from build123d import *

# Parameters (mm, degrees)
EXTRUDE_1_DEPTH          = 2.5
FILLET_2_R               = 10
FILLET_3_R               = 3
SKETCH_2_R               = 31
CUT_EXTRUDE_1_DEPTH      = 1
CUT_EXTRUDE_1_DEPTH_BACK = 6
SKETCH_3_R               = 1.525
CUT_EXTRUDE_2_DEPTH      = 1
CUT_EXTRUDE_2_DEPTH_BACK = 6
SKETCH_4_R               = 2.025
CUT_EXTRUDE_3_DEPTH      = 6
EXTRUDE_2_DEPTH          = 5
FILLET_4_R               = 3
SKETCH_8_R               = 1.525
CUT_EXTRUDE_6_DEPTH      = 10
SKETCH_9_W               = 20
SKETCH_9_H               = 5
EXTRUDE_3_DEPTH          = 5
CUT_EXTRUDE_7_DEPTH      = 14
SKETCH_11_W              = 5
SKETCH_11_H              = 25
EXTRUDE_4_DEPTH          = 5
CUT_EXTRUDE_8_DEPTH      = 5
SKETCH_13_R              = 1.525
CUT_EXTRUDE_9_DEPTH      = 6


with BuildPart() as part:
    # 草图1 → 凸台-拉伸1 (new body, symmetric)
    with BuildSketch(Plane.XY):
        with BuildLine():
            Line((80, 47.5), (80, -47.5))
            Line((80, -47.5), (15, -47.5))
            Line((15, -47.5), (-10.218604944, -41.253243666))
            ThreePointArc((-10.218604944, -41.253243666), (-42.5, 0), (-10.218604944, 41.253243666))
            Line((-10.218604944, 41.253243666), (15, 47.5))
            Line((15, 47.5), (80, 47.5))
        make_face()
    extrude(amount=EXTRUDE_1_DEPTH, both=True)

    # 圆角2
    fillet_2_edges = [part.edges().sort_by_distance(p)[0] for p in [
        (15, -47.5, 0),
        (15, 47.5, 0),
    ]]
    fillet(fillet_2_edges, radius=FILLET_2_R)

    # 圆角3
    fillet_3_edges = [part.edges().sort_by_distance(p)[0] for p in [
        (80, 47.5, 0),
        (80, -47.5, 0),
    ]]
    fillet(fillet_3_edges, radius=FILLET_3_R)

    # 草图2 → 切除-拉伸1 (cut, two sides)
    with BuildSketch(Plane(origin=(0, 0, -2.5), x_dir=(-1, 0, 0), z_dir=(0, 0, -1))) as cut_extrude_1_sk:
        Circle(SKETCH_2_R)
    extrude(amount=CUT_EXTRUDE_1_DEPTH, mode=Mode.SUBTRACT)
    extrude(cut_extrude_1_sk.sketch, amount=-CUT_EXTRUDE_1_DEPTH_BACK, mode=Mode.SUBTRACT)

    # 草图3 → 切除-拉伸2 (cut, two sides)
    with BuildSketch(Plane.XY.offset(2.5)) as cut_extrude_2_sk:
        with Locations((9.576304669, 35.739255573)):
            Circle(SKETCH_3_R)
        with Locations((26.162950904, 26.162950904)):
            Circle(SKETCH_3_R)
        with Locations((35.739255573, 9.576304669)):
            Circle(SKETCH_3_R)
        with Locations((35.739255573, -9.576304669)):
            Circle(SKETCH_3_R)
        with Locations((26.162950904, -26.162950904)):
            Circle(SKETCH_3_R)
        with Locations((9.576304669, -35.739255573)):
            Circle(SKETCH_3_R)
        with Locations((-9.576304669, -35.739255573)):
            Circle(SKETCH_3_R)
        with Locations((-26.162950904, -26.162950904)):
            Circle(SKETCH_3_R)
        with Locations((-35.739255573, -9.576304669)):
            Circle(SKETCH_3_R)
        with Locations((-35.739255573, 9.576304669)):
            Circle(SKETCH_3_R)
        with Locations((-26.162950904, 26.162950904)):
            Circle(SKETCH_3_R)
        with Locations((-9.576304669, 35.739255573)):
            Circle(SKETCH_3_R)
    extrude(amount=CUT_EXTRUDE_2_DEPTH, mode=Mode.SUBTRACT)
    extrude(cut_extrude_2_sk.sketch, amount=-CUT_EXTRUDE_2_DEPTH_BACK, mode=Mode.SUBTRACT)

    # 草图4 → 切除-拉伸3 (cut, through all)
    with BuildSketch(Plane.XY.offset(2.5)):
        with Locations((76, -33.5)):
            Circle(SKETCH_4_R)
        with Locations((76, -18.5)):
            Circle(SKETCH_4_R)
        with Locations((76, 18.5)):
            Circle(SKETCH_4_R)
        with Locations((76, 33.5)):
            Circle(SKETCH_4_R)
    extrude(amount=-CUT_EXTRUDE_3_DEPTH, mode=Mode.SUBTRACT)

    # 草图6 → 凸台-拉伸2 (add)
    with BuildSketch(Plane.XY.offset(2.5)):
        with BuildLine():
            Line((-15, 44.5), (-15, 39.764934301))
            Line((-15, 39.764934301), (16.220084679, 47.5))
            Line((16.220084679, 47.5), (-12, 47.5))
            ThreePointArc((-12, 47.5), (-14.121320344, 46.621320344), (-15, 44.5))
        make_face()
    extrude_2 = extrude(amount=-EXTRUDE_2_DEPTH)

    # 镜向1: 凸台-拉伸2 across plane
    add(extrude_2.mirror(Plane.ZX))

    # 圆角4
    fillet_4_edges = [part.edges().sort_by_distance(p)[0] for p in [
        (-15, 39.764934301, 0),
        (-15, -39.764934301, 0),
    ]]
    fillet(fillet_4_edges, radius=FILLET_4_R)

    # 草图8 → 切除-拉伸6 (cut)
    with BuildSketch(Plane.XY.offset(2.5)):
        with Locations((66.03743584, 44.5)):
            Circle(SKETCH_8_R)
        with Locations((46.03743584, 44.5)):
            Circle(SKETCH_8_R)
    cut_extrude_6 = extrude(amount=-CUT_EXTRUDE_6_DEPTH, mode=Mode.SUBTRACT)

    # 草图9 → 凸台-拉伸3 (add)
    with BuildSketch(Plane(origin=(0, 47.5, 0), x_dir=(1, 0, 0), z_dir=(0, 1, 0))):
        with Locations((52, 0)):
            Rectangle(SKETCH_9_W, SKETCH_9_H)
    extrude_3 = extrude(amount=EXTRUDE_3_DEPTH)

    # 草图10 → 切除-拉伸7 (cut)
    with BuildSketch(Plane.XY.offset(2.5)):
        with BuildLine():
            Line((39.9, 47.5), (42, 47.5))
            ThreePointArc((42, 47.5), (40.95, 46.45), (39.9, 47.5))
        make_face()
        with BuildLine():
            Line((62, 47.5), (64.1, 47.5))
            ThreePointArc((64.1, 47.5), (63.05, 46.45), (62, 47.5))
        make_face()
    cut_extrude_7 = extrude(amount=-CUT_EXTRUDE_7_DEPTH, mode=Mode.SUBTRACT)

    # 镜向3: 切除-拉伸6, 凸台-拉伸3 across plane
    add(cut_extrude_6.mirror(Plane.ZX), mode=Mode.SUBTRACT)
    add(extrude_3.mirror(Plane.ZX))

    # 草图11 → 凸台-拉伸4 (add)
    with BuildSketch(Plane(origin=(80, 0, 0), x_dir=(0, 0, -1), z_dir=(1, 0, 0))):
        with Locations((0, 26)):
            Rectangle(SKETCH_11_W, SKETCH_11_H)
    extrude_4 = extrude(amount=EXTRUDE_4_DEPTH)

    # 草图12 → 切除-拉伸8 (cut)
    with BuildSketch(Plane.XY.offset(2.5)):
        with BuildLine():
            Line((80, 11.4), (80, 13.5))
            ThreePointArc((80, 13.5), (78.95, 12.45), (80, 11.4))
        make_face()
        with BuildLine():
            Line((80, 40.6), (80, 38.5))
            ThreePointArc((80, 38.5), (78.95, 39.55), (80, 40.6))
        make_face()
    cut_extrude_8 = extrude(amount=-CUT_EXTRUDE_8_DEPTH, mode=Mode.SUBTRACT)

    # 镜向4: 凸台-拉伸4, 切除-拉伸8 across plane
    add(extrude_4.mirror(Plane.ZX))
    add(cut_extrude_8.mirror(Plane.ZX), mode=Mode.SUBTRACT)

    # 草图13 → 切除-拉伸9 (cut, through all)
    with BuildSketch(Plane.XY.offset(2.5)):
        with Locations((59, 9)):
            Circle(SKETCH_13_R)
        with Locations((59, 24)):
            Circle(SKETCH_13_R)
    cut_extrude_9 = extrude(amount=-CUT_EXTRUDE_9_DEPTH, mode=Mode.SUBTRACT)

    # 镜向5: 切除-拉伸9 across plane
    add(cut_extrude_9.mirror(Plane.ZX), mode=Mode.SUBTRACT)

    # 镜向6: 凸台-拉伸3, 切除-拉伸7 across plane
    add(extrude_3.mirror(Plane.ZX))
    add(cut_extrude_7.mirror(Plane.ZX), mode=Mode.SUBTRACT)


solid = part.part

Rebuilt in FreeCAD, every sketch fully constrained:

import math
import FreeCAD as App
import Part
import Sketcher

V = App.Vector


def edges_at(feature, points):
    """Names of the edges that pass closest to the given points."""
    edges = feature.Shape.Edges
    near = lambda p: min(range(len(edges)), key=lambda i: edges[i].distToShape(Part.Vertex(*p))[0])
    return sorted({f"Edge{near(p) + 1}" for p in points})

doc = App.newDocument("Part")
body = doc.addObject("PartDesign::Body", "Body")

# Sketch on XY plane
sketch1 = doc.addObject("Sketcher::SketchObject", "Sketch")
body.addObject(sketch1)
sketch1.AttachmentSupport = (doc.XY_Plane, [""])
sketch1.MapMode = "FlatFace"
sketch1.addGeometry(Part.LineSegment(V(80, -48, 0), V(80, 48, 0)), False)
sketch1.addGeometry(Part.LineSegment(V(80, 48, 0), V(15, 48, 0)), False)
sketch1.addGeometry(Part.LineSegment(V(15, 48, 0), V(-10, 41, 0)), False)
sketch1.addGeometry(Part.ArcOfCircle(Part.Circle(V(0, 0, 0), V(0, 0, 1), 42), math.radians(104), math.radians(256)), False)
sketch1.addGeometry(Part.LineSegment(V(-10, -41, 0), V(15, -48, 0)), False)
sketch1.addGeometry(Part.LineSegment(V(15, -48, 0), V(80, -48, 0)), False)
sketch1.addConstraint(Sketcher.Constraint("Coincident", 0, 2, 1, 1))
sketch1.addConstraint(Sketcher.Constraint("Coincident", 1, 2, 2, 1))
sketch1.addConstraint(Sketcher.Constraint("Tangent", 2, 2, 3, 1))
sketch1.addConstraint(Sketcher.Constraint("Tangent", 3, 2, 4, 1))
sketch1.addConstraint(Sketcher.Constraint("Coincident", 4, 2, 5, 1))
sketch1.addConstraint(Sketcher.Constraint("Coincident", 5, 2, 0, 1))
sketch1.addConstraint(Sketcher.Constraint("Vertical", 0))
sketch1.addConstraint(Sketcher.Constraint("Horizontal", 1))
sketch1.addConstraint(Sketcher.Constraint("Horizontal", 5))
sketch1.addConstraint(Sketcher.Constraint("Coincident", 3, 3, -1, 1))
sketch1.addConstraint(Sketcher.Constraint("Symmetric", 1, 2, 4, 2, -1))
sketch1.addConstraint(Sketcher.Constraint("Radius", 3, 42.5))
sketch1.addConstraint(Sketcher.Constraint("DistanceX", 1, 2, 1, 1, 65.0))
sketch1.addConstraint(Sketcher.Constraint("DistanceY", 0, 1, 0, 2, 95.0))
sketch1.addConstraint(Sketcher.Constraint("DistanceX", -1, 1, 0, 2, 80.0))
pad1 = doc.addObject("PartDesign::Pad", "Pad")
body.addObject(pad1)
pad1.Profile = sketch1
pad1.Length = 5
pad1.Midplane = True
doc.recompute()

fillet = doc.addObject("PartDesign::Fillet", "Fillet")
body.addObject(fillet)
fillet.Base = (pad1, edges_at(pad1, [(15, -47.5, 0), (15, 47.5, 0)]))
fillet.Radius = 10
doc.recompute()

fillet2 = doc.addObject("PartDesign::Fillet", "Fillet001")
body.addObject(fillet2)
fillet2.Base = (fillet, edges_at(fillet, [(80, 47.5, 0), (80, -47.5, 0)]))
fillet2.Radius = 3

# Sketch on XY plane
sketch2 = doc.addObject("Sketcher::SketchObject", "Sketch001")
body.addObject(sketch2)
sketch2.AttachmentSupport = (doc.XY_Plane, [""])
sketch2.MapMode = "FlatFace"
sketch2.AttachmentOffset = App.Placement(V(0, 0, -2.5), App.Rotation())
sketch2.addGeometry(Part.Circle(V(0, 0, 0), V(0, 0, 1), 31), False)
sketch2.addConstraint(Sketcher.Constraint("Coincident", 0, 3, -1, 1))
sketch2.addConstraint(Sketcher.Constraint("Diameter", 0, 62.0))
pocket1 = doc.addObject("PartDesign::Pocket", "Pocket")
body.addObject(pocket1)
pocket1.Profile = sketch2
pocket1.Type = "ThroughAll"
pocket1.Midplane = True

# Sketch on XY plane
sketch3 = doc.addObject("Sketcher::SketchObject", "Sketch002")
body.addObject(sketch3)
sketch3.AttachmentSupport = (doc.XY_Plane, [""])
sketch3.MapMode = "FlatFace"
sketch3.AttachmentOffset = App.Placement(V(0, 0, 2.5), App.Rotation())
sketch3.addGeometry(Part.Circle(V(9.6, 35.7, 0), V(0, 0, 1), 1.5), False)
sketch3.addGeometry(Part.Circle(V(26.2, 26.2, 0), V(0, 0, 1), 1.5), False)
sketch3.addGeometry(Part.Circle(V(35.7, 9.6, 0), V(0, 0, 1), 1.5), False)
sketch3.addGeometry(Part.Circle(V(35.7, -9.6, 0), V(0, 0, 1), 1.5), False)
sketch3.addGeometry(Part.Circle(V(26.2, -26.2, 0), V(0, 0, 1), 1.5), False)
sketch3.addGeometry(Part.Circle(V(9.6, -35.7, 0), V(0, 0, 1), 1.5), False)
sketch3.addGeometry(Part.Circle(V(-9.6, -35.7, 0), V(0, 0, 1), 1.5), False)
sketch3.addGeometry(Part.Circle(V(-26.2, -26.2, 0), V(0, 0, 1), 1.5), False)
sketch3.addGeometry(Part.Circle(V(-35.7, -9.6, 0), V(0, 0, 1), 1.5), False)
sketch3.addGeometry(Part.Circle(V(-35.7, 9.6, 0), V(0, 0, 1), 1.5), False)
sketch3.addGeometry(Part.Circle(V(-26.2, 26.2, 0), V(0, 0, 1), 1.5), False)
sketch3.addGeometry(Part.Circle(V(-9.6, 35.7, 0), V(0, 0, 1), 1.5), False)
sketch3.addConstraint(Sketcher.Constraint("Equal", 0, 1))
sketch3.addConstraint(Sketcher.Constraint("Equal", 1, 2))
sketch3.addConstraint(Sketcher.Constraint("Equal", 2, 3))
sketch3.addConstraint(Sketcher.Constraint("Equal", 3, 4))
sketch3.addConstraint(Sketcher.Constraint("Equal", 4, 5))
sketch3.addConstraint(Sketcher.Constraint("Equal", 5, 6))
sketch3.addConstraint(Sketcher.Constraint("Equal", 6, 7))
sketch3.addConstraint(Sketcher.Constraint("Equal", 7, 8))
sketch3.addConstraint(Sketcher.Constraint("Equal", 8, 9))
sketch3.addConstraint(Sketcher.Constraint("Equal", 9, 10))
sketch3.addConstraint(Sketcher.Constraint("Equal", 10, 11))
sketch3.addConstraint(Sketcher.Constraint("Symmetric", 0, 3, 6, 3, -1, 1))
sketch3.addConstraint(Sketcher.Constraint("Symmetric", 1, 3, 7, 3, -1, 1))
sketch3.addConstraint(Sketcher.Constraint("Symmetric", 2, 3, 8, 3, -1, 1))
sketch3.addConstraint(Sketcher.Constraint("Symmetric", 3, 3, 9, 3, -1, 1))
sketch3.addConstraint(Sketcher.Constraint("Symmetric", 4, 3, 10, 3, -1, 1))
sketch3.addConstraint(Sketcher.Constraint("Symmetric", 5, 3, 11, 3, -1, 1))
sketch3.addConstraint(Sketcher.Constraint("Symmetric", 5, 3, 6, 3, -2))
sketch3.addConstraint(Sketcher.Constraint("Symmetric", 4, 3, 7, 3, -2))
sketch3.addConstraint(Sketcher.Constraint("Symmetric", 3, 3, 8, 3, -2))
sketch3.addConstraint(Sketcher.Constraint("Diameter", 0, 3.05))
sketch3.addConstraint(Sketcher.Constraint("DistanceY", 4, 3, 1, 3, 52.325902))
sketch3.addConstraint(Sketcher.Constraint("DistanceX", 7, 3, 4, 3, 52.325902))
sketch3.addConstraint(Sketcher.Constraint("DistanceX", 0, 3, 2, 3, 26.162951))
sketch3.addConstraint(Sketcher.Constraint("DistanceY", 2, 3, 0, 3, 26.162951))
sketch3.addConstraint(Sketcher.Constraint("DistanceY", 3, 3, 2, 3, 19.152609))
sketch3.addConstraint(Sketcher.Constraint("DistanceX", 6, 3, 5, 3, 19.152609))
pocket2 = doc.addObject("PartDesign::Pocket", "Pocket001")
body.addObject(pocket2)
pocket2.Profile = sketch3
pocket2.Type = "ThroughAll"
pocket2.Midplane = True

# Sketch on XY plane
sketch4 = doc.addObject("Sketcher::SketchObject", "Sketch003")
body.addObject(sketch4)
sketch4.AttachmentSupport = (doc.XY_Plane, [""])
sketch4.MapMode = "FlatFace"
sketch4.AttachmentOffset = App.Placement(V(0, 0, 2.5), App.Rotation())
sketch4.addGeometry(Part.Circle(V(76, -33.5, 0), V(0, 0, 1), 2), False)
sketch4.addGeometry(Part.Circle(V(76, -18.5, 0), V(0, 0, 1), 2), False)
sketch4.addGeometry(Part.Circle(V(76, 18.5, 0), V(0, 0, 1), 2), False)
sketch4.addGeometry(Part.Circle(V(76, 33.5, 0), V(0, 0, 1), 2), False)
sketch4.addConstraint(Sketcher.Constraint("Equal", 0, 1))
sketch4.addConstraint(Sketcher.Constraint("Equal", 1, 2))
sketch4.addConstraint(Sketcher.Constraint("Equal", 2, 3))
sketch4.addConstraint(Sketcher.Constraint("Symmetric", 1, 3, 2, 3, -1))
sketch4.addConstraint(Sketcher.Constraint("Symmetric", 0, 3, 3, 3, -1))
sketch4.addConstraint(Sketcher.Constraint("Vertical", 0, 3, 1, 3))
sketch4.addConstraint(Sketcher.Constraint("Diameter", 0, 4.05))
sketch4.addConstraint(Sketcher.Constraint("DistanceX", -1, 1, 0, 3, 76.0))
sketch4.addConstraint(Sketcher.Constraint("DistanceY", 0, 3, 1, 3, 15.0))
sketch4.addConstraint(Sketcher.Constraint("DistanceY", 1, 3, 2, 3, 37.0))
pocket3 = doc.addObject("PartDesign::Pocket", "Pocket002")
body.addObject(pocket3)
pocket3.Profile = sketch4
pocket3.Type = "ThroughAll"

# Sketch on XY plane
sketch5 = doc.addObject("Sketcher::SketchObject", "Sketch004")
body.addObject(sketch5)
sketch5.AttachmentSupport = (doc.XY_Plane, [""])
sketch5.MapMode = "FlatFace"
sketch5.AttachmentOffset = App.Placement(V(0, 0, 2.5), App.Rotation())
sketch5.addGeometry(Part.LineSegment(V(-15, 44.5, 0), V(-15, 39.8, 0)), False)
sketch5.addGeometry(Part.LineSegment(V(-15, 39.8, 0), V(16.2, 47.5, 0)), False)
sketch5.addGeometry(Part.LineSegment(V(16.2, 47.5, 0), V(-12, 47.5, 0)), False)
sketch5.addGeometry(Part.ArcOfCircle(Part.Circle(V(-12, 44.5, 0), V(0, 0, 1), 3), math.radians(90), math.radians(180)), False)
sketch5.addConstraint(Sketcher.Constraint("Coincident", 0, 2, 1, 1))
sketch5.addConstraint(Sketcher.Constraint("Coincident", 1, 2, 2, 1))
sketch5.addConstraint(Sketcher.Constraint("Tangent", 2, 2, 3, 1))
sketch5.addConstraint(Sketcher.Constraint("Tangent", 3, 2, 0, 1))
sketch5.addConstraint(Sketcher.Constraint("Vertical", 0))
sketch5.addConstraint(Sketcher.Constraint("Horizontal", 2))
sketch5.addConstraint(Sketcher.Constraint("Radius", 3, 3.0))
sketch5.addConstraint(Sketcher.Constraint("DistanceX", 3, 3, -1, 1, 12.0))
sketch5.addConstraint(Sketcher.Constraint("DistanceY", -1, 1, 3, 3, 44.5))
sketch5.addConstraint(Sketcher.Constraint("Distance", 1, 32.164032))
sketch5.addConstraint(Sketcher.Constraint("DistanceX", 2, 2, 2, 1, 28.220085))
pad2 = doc.addObject("PartDesign::Pad", "Pad001")
body.addObject(pad2)
pad2.Profile = sketch5
pad2.Length = 5
pad2.Reversed = True
doc.recompute()

mirrored = doc.addObject("PartDesign::Mirrored", "Mirrored")
body.addObject(mirrored)
mirrored.Originals = [pad2]
mirrored.MirrorPlane = (doc.XZ_Plane, [""])
body.Tip = mirrored
doc.recompute()

fillet3 = doc.addObject("PartDesign::Fillet", "Fillet002")
body.addObject(fillet3)
fillet3.Base = (mirrored, edges_at(mirrored, [(-15, 39.765, 0), (-15, -39.765, 0)]))
fillet3.Radius = 3

# Sketch on XY plane
sketch6 = doc.addObject("Sketcher::SketchObject", "Sketch005")
body.addObject(sketch6)
sketch6.AttachmentSupport = (doc.XY_Plane, [""])
sketch6.MapMode = "FlatFace"
sketch6.AttachmentOffset = App.Placement(V(0, 0, 2.5), App.Rotation())
sketch6.addGeometry(Part.Circle(V(66, 44.5, 0), V(0, 0, 1), 1.5), False)
sketch6.addGeometry(Part.Circle(V(46, 44.5, 0), V(0, 0, 1), 1.5), False)
sketch6.addConstraint(Sketcher.Constraint("Equal", 0, 1))
sketch6.addConstraint(Sketcher.Constraint("Horizontal", 0, 3, 1, 3))
sketch6.addConstraint(Sketcher.Constraint("Diameter", 0, 3.05))
sketch6.addConstraint(Sketcher.Constraint("DistanceX", 1, 3, 0, 3, 20.0))
sketch6.addConstraint(Sketcher.Constraint("DistanceY", -1, 1, 0, 3, 44.5))
sketch6.addConstraint(Sketcher.Constraint("DistanceX", -1, 1, 0, 3, 66.037436))
pocket4 = doc.addObject("PartDesign::Pocket", "Pocket003")
body.addObject(pocket4)
pocket4.Profile = sketch6
pocket4.Length = 10

# Sketch on XZ plane
sketch7 = doc.addObject("Sketcher::SketchObject", "Sketch006")
body.addObject(sketch7)
sketch7.AttachmentSupport = (doc.XZ_Plane, [""])
sketch7.MapMode = "FlatFace"
sketch7.AttachmentOffset = App.Placement(V(0, 0, -47.5), App.Rotation())
sketch7.addGeometry(Part.LineSegment(V(42, -2, 0), V(42, 2, 0)), False)
sketch7.addGeometry(Part.LineSegment(V(42, 2, 0), V(62, 2, 0)), False)
sketch7.addGeometry(Part.LineSegment(V(62, 2, 0), V(62, -2, 0)), False)
sketch7.addGeometry(Part.LineSegment(V(62, -2, 0), V(42, -2, 0)), False)
sketch7.addConstraint(Sketcher.Constraint("Coincident", 0, 2, 1, 1))
sketch7.addConstraint(Sketcher.Constraint("Coincident", 1, 2, 2, 1))
sketch7.addConstraint(Sketcher.Constraint("Coincident", 2, 2, 3, 1))
sketch7.addConstraint(Sketcher.Constraint("Coincident", 3, 2, 0, 1))
sketch7.addConstraint(Sketcher.Constraint("Vertical", 0))
sketch7.addConstraint(Sketcher.Constraint("Horizontal", 1))
sketch7.addConstraint(Sketcher.Constraint("Vertical", 2))
sketch7.addConstraint(Sketcher.Constraint("Horizontal", 3))
sketch7.addConstraint(Sketcher.Constraint("DistanceX", 1, 1, 1, 2, 20.0))
sketch7.addConstraint(Sketcher.Constraint("DistanceY", 0, 1, 0, 2, 5.0))
sketch7.addConstraint(Sketcher.Constraint("DistanceX", -1, 1, 0, 2, 42.0))
sketch7.addConstraint(Sketcher.Constraint("DistanceY", -1, 1, 0, 2, 2.5))
pad3 = doc.addObject("PartDesign::Pad", "Pad002")
body.addObject(pad3)
pad3.Profile = sketch7
pad3.Length = 5
pad3.Reversed = True

# Sketch on XY plane
sketch8 = doc.addObject("Sketcher::SketchObject", "Sketch007")
body.addObject(sketch8)
sketch8.AttachmentSupport = (doc.XY_Plane, [""])
sketch8.MapMode = "FlatFace"
sketch8.AttachmentOffset = App.Placement(V(0, 0, 2.5), App.Rotation())
sketch8.addGeometry(Part.LineSegment(V(42, 47.5, 0), V(39.9, 47.5, 0)), False)
sketch8.addGeometry(Part.ArcOfCircle(Part.Circle(V(41, 47.5, 0), V(0, 0, 1), 1.1), math.radians(180), math.radians(360)), False)
sketch8.addGeometry(Part.LineSegment(V(64.1, 47.5, 0), V(62, 47.5, 0)), False)
sketch8.addGeometry(Part.ArcOfCircle(Part.Circle(V(63, 47.5, 0), V(0, 0, 1), 1.1), math.radians(180), math.radians(360)), False)
sketch8.addConstraint(Sketcher.Constraint("Coincident", 0, 1, 1, 2))
sketch8.addConstraint(Sketcher.Constraint("Coincident", 1, 1, 0, 2))
sketch8.addConstraint(Sketcher.Constraint("Coincident", 2, 1, 3, 2))
sketch8.addConstraint(Sketcher.Constraint("Coincident", 3, 1, 2, 2))
sketch8.addConstraint(Sketcher.Constraint("Horizontal", 0))
sketch8.addConstraint(Sketcher.Constraint("Horizontal", 2))
sketch8.addConstraint(Sketcher.Constraint("Equal", 1, 3))
sketch8.addConstraint(Sketcher.Constraint("Horizontal", 1, 3, 3, 3))
sketch8.addConstraint(Sketcher.Constraint("Horizontal", 3, 3, 0, 1))
sketch8.addConstraint(Sketcher.Constraint("Horizontal", 1, 1, 2, 1))
sketch8.addConstraint(Sketcher.Constraint("Radius", 1, 1.05))
sketch8.addConstraint(Sketcher.Constraint("DistanceX", -1, 1, 0, 1, 42.0))
sketch8.addConstraint(Sketcher.Constraint("DistanceX", -1, 1, 3, 1, 62.0))
sketch8.addConstraint(Sketcher.Constraint("DistanceY", -1, 1, 1, 3, 47.5))
pocket5 = doc.addObject("PartDesign::Pocket", "Pocket004")
body.addObject(pocket5)
pocket5.Profile = sketch8
pocket5.Length = 14
doc.recompute()

mirrored2 = doc.addObject("PartDesign::Mirrored", "Mirrored001")
body.addObject(mirrored2)
mirrored2.Originals = [pocket4, pad3]
mirrored2.MirrorPlane = (doc.XZ_Plane, [""])
body.Tip = mirrored2

# Sketch on YZ plane
sketch9 = doc.addObject("Sketcher::SketchObject", "Sketch008")
body.addObject(sketch9)
sketch9.AttachmentSupport = (doc.YZ_Plane, [""])
sketch9.MapMode = "FlatFace"
sketch9.AttachmentOffset = App.Placement(V(0, 0, 80), App.Rotation())
sketch9.addGeometry(Part.LineSegment(V(38, 2, 0), V(14, 2, 0)), False)
sketch9.addGeometry(Part.LineSegment(V(14, 2, 0), V(14, -2, 0)), False)
sketch9.addGeometry(Part.LineSegment(V(14, -2, 0), V(38, -2, 0)), False)
sketch9.addGeometry(Part.LineSegment(V(38, -2, 0), V(38, 2, 0)), False)
sketch9.addConstraint(Sketcher.Constraint("Coincident", 0, 2, 1, 1))
sketch9.addConstraint(Sketcher.Constraint("Coincident", 1, 2, 2, 1))
sketch9.addConstraint(Sketcher.Constraint("Coincident", 2, 2, 3, 1))
sketch9.addConstraint(Sketcher.Constraint("Coincident", 3, 2, 0, 1))
sketch9.addConstraint(Sketcher.Constraint("Horizontal", 0))
sketch9.addConstraint(Sketcher.Constraint("Vertical", 1))
sketch9.addConstraint(Sketcher.Constraint("Horizontal", 2))
sketch9.addConstraint(Sketcher.Constraint("Vertical", 3))
sketch9.addConstraint(Sketcher.Constraint("DistanceX", 0, 2, 0, 1, 25.0))
sketch9.addConstraint(Sketcher.Constraint("DistanceY", 1, 2, 1, 1, 5.0))
sketch9.addConstraint(Sketcher.Constraint("DistanceX", -1, 1, 0, 2, 13.5))
sketch9.addConstraint(Sketcher.Constraint("DistanceY", -1, 1, 0, 2, 2.5))
pad4 = doc.addObject("PartDesign::Pad", "Pad003")
body.addObject(pad4)
pad4.Profile = sketch9
pad4.Length = 5

# Sketch on XY plane
sketch10 = doc.addObject("Sketcher::SketchObject", "Sketch009")
body.addObject(sketch10)
sketch10.AttachmentSupport = (doc.XY_Plane, [""])
sketch10.MapMode = "FlatFace"
sketch10.AttachmentOffset = App.Placement(V(0, 0, 2.5), App.Rotation())
sketch10.addGeometry(Part.LineSegment(V(80, 11.4, 0), V(80, 13.5, 0)), False)
sketch10.addGeometry(Part.ArcOfCircle(Part.Circle(V(80, 12.4, 0), V(0, 0, 1), 1.1), math.radians(90), math.radians(270)), False)
sketch10.addGeometry(Part.LineSegment(V(80, 38.5, 0), V(80, 40.6, 0)), False)
sketch10.addGeometry(Part.ArcOfCircle(Part.Circle(V(80, 39.5, 0), V(0, 0, 1), 1.1), math.radians(90), math.radians(270)), False)
sketch10.addConstraint(Sketcher.Constraint("Coincident", 0, 1, 1, 2))
sketch10.addConstraint(Sketcher.Constraint("Coincident", 1, 1, 0, 2))
sketch10.addConstraint(Sketcher.Constraint("Coincident", 2, 1, 3, 2))
sketch10.addConstraint(Sketcher.Constraint("Coincident", 3, 1, 2, 2))
sketch10.addConstraint(Sketcher.Constraint("Vertical", 0))
sketch10.addConstraint(Sketcher.Constraint("Vertical", 2))
sketch10.addConstraint(Sketcher.Constraint("Equal", 1, 3))
sketch10.addConstraint(Sketcher.Constraint("Vertical", 1, 3, 3, 3))
sketch10.addConstraint(Sketcher.Constraint("Vertical", 3, 3, 0, 1))
sketch10.addConstraint(Sketcher.Constraint("Vertical", 1, 1, 2, 1))
sketch10.addConstraint(Sketcher.Constraint("Radius", 1, 1.05))
sketch10.addConstraint(Sketcher.Constraint("DistanceX", -1, 1, 1, 3, 80.0))
sketch10.addConstraint(Sketcher.Constraint("DistanceY", 1, 1, 2, 1, 25.0))
sketch10.addConstraint(Sketcher.Constraint("DistanceY", -1, 1, 0, 1, 11.4))
pocket6 = doc.addObject("PartDesign::Pocket", "Pocket005")
body.addObject(pocket6)
pocket6.Profile = sketch10
pocket6.Length = 5
doc.recompute()

mirrored3 = doc.addObject("PartDesign::Mirrored", "Mirrored002")
body.addObject(mirrored3)
mirrored3.Originals = [pad4, pocket6]
mirrored3.MirrorPlane = (doc.XZ_Plane, [""])
body.Tip = mirrored3

# Sketch on XY plane
sketch11 = doc.addObject("Sketcher::SketchObject", "Sketch010")
body.addObject(sketch11)
sketch11.AttachmentSupport = (doc.XY_Plane, [""])
sketch11.MapMode = "FlatFace"
sketch11.AttachmentOffset = App.Placement(V(0, 0, 2.5), App.Rotation())
sketch11.addGeometry(Part.Circle(V(59, 9, 0), V(0, 0, 1), 1.5), False)
sketch11.addGeometry(Part.Circle(V(59, 24, 0), V(0, 0, 1), 1.5), False)
sketch11.addConstraint(Sketcher.Constraint("Equal", 0, 1))
sketch11.addConstraint(Sketcher.Constraint("Vertical", 0, 3, 1, 3))
sketch11.addConstraint(Sketcher.Constraint("Diameter", 0, 3.05))
sketch11.addConstraint(Sketcher.Constraint("DistanceX", -1, 1, 0, 3, 59.0))
sketch11.addConstraint(Sketcher.Constraint("DistanceY", -1, 1, 0, 3, 9.0))
sketch11.addConstraint(Sketcher.Constraint("DistanceY", -1, 1, 1, 3, 24.0))
pocket7 = doc.addObject("PartDesign::Pocket", "Pocket006")
body.addObject(pocket7)
pocket7.Profile = sketch11
pocket7.Type = "ThroughAll"
doc.recompute()

mirrored4 = doc.addObject("PartDesign::Mirrored", "Mirrored003")
body.addObject(mirrored4)
mirrored4.Originals = [pocket7]
mirrored4.MirrorPlane = (doc.XZ_Plane, [""])
body.Tip = mirrored4
doc.recompute()

mirrored5 = doc.addObject("PartDesign::Mirrored", "Mirrored004")
body.addObject(mirrored5)
mirrored5.Originals = [pad3, pocket5]
mirrored5.MirrorPlane = (doc.XZ_Plane, [""])
body.Tip = mirrored5

doc.recompute()
